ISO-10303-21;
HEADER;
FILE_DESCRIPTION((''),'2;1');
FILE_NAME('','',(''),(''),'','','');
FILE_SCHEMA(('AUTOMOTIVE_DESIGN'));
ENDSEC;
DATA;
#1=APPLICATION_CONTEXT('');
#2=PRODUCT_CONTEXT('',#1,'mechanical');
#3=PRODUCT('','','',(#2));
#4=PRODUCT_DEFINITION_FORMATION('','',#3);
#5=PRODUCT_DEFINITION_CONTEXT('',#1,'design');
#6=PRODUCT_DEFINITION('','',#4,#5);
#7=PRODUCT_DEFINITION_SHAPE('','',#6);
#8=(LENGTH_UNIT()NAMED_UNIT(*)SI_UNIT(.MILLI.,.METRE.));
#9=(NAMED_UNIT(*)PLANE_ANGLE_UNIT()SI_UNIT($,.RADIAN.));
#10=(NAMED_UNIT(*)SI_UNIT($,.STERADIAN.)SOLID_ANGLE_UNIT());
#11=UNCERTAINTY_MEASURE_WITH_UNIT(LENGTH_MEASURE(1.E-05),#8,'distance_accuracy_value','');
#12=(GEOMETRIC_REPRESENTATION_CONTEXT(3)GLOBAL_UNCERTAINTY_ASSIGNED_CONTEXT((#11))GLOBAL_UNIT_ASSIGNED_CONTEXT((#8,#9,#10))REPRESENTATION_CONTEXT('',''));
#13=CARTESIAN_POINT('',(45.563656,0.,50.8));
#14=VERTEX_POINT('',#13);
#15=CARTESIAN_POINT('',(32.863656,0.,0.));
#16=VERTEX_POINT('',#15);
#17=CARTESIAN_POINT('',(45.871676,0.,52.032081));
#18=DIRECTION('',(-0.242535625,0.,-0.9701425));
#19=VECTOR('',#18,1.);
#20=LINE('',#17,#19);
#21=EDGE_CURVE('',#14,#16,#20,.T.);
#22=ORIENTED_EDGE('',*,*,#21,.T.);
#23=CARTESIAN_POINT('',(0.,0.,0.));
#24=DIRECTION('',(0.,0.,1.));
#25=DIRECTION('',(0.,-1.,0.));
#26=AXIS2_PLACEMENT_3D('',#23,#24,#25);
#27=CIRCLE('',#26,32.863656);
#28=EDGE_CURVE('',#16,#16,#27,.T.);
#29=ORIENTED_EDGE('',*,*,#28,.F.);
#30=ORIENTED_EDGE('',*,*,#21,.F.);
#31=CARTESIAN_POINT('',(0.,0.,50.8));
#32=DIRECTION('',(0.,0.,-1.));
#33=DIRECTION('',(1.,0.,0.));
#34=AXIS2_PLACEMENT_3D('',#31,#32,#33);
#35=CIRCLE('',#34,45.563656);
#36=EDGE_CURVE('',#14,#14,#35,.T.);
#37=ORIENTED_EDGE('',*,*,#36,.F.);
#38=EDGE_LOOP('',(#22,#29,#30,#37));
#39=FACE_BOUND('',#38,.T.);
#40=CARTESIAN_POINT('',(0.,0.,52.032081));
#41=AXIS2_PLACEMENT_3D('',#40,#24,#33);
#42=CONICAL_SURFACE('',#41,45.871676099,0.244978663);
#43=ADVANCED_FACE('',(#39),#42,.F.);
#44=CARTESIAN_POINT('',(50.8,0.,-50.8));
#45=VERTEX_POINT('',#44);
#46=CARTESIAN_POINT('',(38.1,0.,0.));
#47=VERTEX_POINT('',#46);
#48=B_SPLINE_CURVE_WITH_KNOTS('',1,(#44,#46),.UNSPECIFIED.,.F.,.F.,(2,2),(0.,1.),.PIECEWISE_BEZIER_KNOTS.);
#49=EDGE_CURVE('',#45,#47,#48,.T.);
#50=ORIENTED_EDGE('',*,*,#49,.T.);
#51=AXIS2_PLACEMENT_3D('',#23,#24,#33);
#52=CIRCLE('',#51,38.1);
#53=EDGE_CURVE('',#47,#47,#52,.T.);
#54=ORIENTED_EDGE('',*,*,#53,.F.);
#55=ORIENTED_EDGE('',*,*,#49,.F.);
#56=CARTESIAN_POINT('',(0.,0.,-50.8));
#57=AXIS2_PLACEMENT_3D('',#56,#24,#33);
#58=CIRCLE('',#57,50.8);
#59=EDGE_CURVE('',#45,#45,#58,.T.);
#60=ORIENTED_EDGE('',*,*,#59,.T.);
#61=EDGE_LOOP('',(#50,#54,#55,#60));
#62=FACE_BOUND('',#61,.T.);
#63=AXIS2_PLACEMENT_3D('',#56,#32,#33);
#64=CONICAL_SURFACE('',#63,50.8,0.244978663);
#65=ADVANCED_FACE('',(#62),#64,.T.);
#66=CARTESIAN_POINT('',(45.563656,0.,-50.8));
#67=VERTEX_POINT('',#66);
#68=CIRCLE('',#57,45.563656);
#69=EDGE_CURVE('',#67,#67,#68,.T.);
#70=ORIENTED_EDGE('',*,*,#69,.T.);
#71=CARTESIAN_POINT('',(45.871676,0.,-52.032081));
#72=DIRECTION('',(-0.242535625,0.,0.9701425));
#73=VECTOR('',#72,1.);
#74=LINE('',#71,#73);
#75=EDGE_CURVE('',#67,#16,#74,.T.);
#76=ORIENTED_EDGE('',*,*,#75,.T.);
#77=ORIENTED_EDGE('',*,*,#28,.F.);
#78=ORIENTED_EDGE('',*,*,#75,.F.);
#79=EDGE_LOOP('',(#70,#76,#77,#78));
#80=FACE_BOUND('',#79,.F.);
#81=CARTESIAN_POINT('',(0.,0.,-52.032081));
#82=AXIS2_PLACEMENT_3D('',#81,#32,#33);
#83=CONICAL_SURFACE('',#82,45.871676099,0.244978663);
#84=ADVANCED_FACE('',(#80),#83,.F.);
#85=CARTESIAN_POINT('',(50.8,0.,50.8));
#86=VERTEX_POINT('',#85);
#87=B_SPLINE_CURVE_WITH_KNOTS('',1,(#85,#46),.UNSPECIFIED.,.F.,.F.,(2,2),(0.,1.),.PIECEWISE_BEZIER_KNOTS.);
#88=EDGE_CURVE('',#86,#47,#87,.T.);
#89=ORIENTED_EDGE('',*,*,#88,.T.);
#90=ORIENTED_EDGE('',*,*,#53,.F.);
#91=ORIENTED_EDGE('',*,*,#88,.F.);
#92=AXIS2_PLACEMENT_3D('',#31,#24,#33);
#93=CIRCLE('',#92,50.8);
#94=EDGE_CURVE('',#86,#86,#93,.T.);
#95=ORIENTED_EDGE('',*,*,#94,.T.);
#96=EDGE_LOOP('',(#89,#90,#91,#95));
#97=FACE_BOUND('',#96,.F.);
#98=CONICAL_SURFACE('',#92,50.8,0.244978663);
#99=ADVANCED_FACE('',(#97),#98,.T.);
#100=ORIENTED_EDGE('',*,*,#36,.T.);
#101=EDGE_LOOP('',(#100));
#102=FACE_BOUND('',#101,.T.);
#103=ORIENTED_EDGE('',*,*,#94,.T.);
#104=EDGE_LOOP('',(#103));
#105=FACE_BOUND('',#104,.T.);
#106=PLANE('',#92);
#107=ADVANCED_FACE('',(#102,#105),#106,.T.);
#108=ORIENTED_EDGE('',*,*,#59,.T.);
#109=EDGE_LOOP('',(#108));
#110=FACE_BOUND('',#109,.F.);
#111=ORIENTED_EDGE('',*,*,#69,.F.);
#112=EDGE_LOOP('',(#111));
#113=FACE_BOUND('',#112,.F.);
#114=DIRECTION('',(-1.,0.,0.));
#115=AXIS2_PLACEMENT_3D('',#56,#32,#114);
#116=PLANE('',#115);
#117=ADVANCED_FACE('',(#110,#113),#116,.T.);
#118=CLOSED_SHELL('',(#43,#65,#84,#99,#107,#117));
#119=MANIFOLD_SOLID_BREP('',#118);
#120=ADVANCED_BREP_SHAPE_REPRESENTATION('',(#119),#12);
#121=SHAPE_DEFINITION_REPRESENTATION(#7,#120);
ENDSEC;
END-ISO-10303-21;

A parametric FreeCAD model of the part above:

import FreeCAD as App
import Part
import Sketcher
from FreeCAD import Vector
Q = App.Units.Quantity


def faces_at(feature, points):
    """Names of the faces that lie closest to the given points."""
    faces = feature.Shape.Faces
    near = lambda p: min(range(len(faces)), key=lambda i: faces[i].distToShape(Part.Vertex(*p))[0])
    return sorted({f"Face{near(p) + 1}" for p in points})

doc = App.newDocument("Part")
body = doc.addObject("PartDesign::Body", "Body")

sketch1 = doc.addObject("Sketcher::SketchObject", "Sketch")
body.addObject(sketch1)
sketch1.AttachmentSupport = (doc.XY_Plane, [""])
sketch1.MapMode = "FlatFace"
sketch1.AttachmentOffset = App.Placement(Vector(0, 0, 2 * 25.4), App.Rotation())
sketch1.addGeometry(Part.Circle(Vector(0, 0, 0), Vector(0, 0, 1), 51), False)
sketch1.addConstraint([
    Sketcher.Constraint("Coincident", 0, 3, -1, 1),
    Sketcher.Constraint("Diameter", 0, Q("4 in")),
])

sketch2 = doc.addObject("Sketcher::SketchObject", "Sketch001")
body.addObject(sketch2)
sketch2.AttachmentSupport = (doc.XY_Plane, [""])
sketch2.MapMode = "FlatFace"
sketch2.addGeometry(Part.Circle(Vector(0, 0, 0), Vector(0, 0, 1), 38), False)
sketch2.addConstraint([
    Sketcher.Constraint("Coincident", 0, 3, -1, 1),
    Sketcher.Constraint("Diameter", 0, Q("3 in")),
])

additiveloft = doc.addObject("PartDesign::AdditiveLoft", "AdditiveLoft")
body.addObject(additiveloft)
additiveloft.Profile = sketch1
additiveloft.Sections = [sketch2]
body2 = doc.addObject("PartDesign::Body", "Body001")
doc.recompute()

body2.BaseFeature = body
doc.recompute()

mirroring = doc.addObject("Part::Mirroring", "Mirroring")
mirroring.Source = body
mirroring.Base = Vector(0, 0, 0)
mirroring.Normal = Vector(0, 0, 1)
body3 = doc.addObject("PartDesign::Body", "Body002")
body3.BaseFeature = mirroring
boolean = doc.addObject("PartDesign::Boolean", "Boolean")
body2.addObject(boolean)
boolean.Type = "Fuse"
boolean.addObjects([body3])
doc.recompute()

thickness = doc.addObject("PartDesign::Thickness", "Thickness")
body2.addObject(thickness)
thickness.Base = (boolean, faces_at(boolean, [(0, 0, -50.8), (0, 0, 50.8)]))
thickness.Value = Q("0.2 in")
thickness.Reversed = True
thickness.Join = "Intersection"
mirroring.Visibility = False

doc.recompute()
